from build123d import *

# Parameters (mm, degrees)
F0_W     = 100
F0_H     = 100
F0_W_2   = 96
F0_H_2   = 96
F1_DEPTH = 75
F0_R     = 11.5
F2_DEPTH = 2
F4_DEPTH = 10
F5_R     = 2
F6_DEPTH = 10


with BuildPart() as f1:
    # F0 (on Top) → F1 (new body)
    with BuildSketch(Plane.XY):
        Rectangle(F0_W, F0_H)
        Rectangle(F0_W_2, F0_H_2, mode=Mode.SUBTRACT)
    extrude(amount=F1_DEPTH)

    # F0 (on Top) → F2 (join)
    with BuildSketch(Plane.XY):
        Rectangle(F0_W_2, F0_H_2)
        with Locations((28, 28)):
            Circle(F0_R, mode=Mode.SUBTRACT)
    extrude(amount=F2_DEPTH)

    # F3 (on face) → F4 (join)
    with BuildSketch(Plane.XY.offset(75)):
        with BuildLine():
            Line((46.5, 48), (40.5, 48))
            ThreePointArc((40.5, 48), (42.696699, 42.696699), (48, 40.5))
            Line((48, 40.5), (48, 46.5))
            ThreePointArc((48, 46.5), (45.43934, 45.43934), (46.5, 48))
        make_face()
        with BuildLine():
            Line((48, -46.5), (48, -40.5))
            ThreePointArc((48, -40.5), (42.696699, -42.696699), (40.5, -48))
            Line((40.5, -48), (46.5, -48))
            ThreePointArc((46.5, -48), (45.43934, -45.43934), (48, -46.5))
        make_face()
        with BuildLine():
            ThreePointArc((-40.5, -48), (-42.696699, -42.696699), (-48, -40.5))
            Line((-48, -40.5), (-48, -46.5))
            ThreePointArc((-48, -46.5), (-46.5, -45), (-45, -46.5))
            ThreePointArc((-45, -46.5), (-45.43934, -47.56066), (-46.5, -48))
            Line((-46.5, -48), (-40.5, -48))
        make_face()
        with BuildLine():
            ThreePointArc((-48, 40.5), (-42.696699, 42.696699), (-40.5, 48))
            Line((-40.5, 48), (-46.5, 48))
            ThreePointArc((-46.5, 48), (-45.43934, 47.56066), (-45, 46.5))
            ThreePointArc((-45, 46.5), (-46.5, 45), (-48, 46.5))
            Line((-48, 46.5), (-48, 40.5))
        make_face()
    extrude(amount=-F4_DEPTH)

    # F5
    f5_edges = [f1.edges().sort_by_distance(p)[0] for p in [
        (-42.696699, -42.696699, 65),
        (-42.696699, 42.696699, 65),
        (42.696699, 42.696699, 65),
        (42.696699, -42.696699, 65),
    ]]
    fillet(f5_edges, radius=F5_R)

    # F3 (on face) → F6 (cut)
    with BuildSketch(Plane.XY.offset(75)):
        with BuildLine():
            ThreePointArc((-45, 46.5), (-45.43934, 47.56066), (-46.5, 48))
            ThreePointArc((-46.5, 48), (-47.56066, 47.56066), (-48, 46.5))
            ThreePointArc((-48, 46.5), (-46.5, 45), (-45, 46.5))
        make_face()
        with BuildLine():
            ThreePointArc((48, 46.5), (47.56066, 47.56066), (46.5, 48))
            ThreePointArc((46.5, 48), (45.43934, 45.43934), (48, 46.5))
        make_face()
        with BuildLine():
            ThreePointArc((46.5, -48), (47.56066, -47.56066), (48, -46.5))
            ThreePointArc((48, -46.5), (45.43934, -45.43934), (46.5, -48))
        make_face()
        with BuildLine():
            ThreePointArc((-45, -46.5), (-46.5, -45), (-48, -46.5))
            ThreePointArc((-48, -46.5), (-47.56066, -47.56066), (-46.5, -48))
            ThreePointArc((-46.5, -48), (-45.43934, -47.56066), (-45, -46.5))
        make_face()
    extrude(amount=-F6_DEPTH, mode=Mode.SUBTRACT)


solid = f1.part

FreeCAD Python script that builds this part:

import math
import FreeCAD as App
import Part
import Sketcher
Q = App.Units.Quantity


def edges_at(feature, points):
    """Names of the edges that pass closest to the given points."""
    edges = feature.Shape.Edges
    near = lambda p: min(range(len(edges)), key=lambda i: edges[i].distToShape(Part.Vertex(*p))[0])
    return sorted({f"Edge{near(p) + 1}" for p in points})

doc = App.newDocument("Part")
body = doc.addObject("PartDesign::Body", "Body")

sketch1 = doc.addObject("Sketcher::SketchObject", "Sketch")
body.addObject(sketch1)
sketch1.AttachmentSupport = (doc.XY_Plane, [""])
sketch1.MapMode = "FlatFace"
sketch1.addGeometry(Part.LineSegment(App.Vector(-50, 50, 0), App.Vector(-50, -50, 0)), False)
sketch1.addGeometry(Part.LineSegment(App.Vector(-50, -50, 0), App.Vector(50, -50, 0)), False)
sketch1.addGeometry(Part.LineSegment(App.Vector(50, -50, 0), App.Vector(50, 50, 0)), False)
sketch1.addGeometry(Part.LineSegment(App.Vector(50, 50, 0), App.Vector(-50, 50, 0)), False)
sketch1.addGeometry(Part.LineSegment(App.Vector(48, -48, 0), App.Vector(-48, -48, 0)), False)
sketch1.addGeometry(Part.LineSegment(App.Vector(-48, -48, 0), App.Vector(-48, 48, 0)), False)
sketch1.addGeometry(Part.LineSegment(App.Vector(-48, 48, 0), App.Vector(48, 48, 0)), False)
sketch1.addGeometry(Part.LineSegment(App.Vector(48, 48, 0), App.Vector(48, -48, 0)), False)
sketch1.addConstraint(Sketcher.Constraint("Coincident", 0, 2, 1, 1))
sketch1.addConstraint(Sketcher.Constraint("Coincident", 1, 2, 2, 1))
sketch1.addConstraint(Sketcher.Constraint("Coincident", 2, 2, 3, 1))
sketch1.addConstraint(Sketcher.Constraint("Coincident", 3, 2, 0, 1))
sketch1.addConstraint(Sketcher.Constraint("Coincident", 4, 2, 5, 1))
sketch1.addConstraint(Sketcher.Constraint("Coincident", 5, 2, 6, 1))
sketch1.addConstraint(Sketcher.Constraint("Coincident", 6, 2, 7, 1))
sketch1.addConstraint(Sketcher.Constraint("Coincident", 7, 2, 4, 1))
sketch1.addConstraint(Sketcher.Constraint("Vertical", 0))
sketch1.addConstraint(Sketcher.Constraint("Horizontal", 1))
sketch1.addConstraint(Sketcher.Constraint("Vertical", 2))
sketch1.addConstraint(Sketcher.Constraint("Horizontal", 3))
sketch1.addConstraint(Sketcher.Constraint("Horizontal", 4))
sketch1.addConstraint(Sketcher.Constraint("Vertical", 5))
sketch1.addConstraint(Sketcher.Constraint("Horizontal", 6))
sketch1.addConstraint(Sketcher.Constraint("Vertical", 7))
sketch1.addConstraint(Sketcher.Constraint("Symmetric", 0, 2, 2, 2, -1, 1))
sketch1.addConstraint(Sketcher.Constraint("Symmetric", 4, 2, 6, 2, -1, 1))
sketch1.addConstraint(Sketcher.Constraint("Equal", 3, 0))
sketch1.addConstraint(Sketcher.Constraint("Equal", 6, 5))
sketch1.addConstraint(Sketcher.Constraint("DistanceX", 1, 1, 1, 2, Q("100 mm")))
sketch1.addConstraint(Sketcher.Constraint("DistanceX", 4, 2, 4, 1, Q("96 mm")))
pad1 = doc.addObject("PartDesign::Pad", "Pad")
body.addObject(pad1)
pad1.Profile = sketch1
pad1.Length = 75

sketch2 = doc.addObject("Sketcher::SketchObject", "Sketch001")
body.addObject(sketch2)
sketch2.AttachmentSupport = (doc.XY_Plane, [""])
sketch2.MapMode = "FlatFace"
sketch2.addGeometry(Part.LineSegment(App.Vector(-48, 48, 0), App.Vector(-48, -48, 0)), False)
sketch2.addGeometry(Part.LineSegment(App.Vector(-48, -48, 0), App.Vector(48, -48, 0)), False)
sketch2.addGeometry(Part.LineSegment(App.Vector(48, -48, 0), App.Vector(48, 48, 0)), False)
sketch2.addGeometry(Part.LineSegment(App.Vector(48, 48, 0), App.Vector(-48, 48, 0)), False)
sketch2.addGeometry(Part.Circle(App.Vector(28, 28, 0), App.Vector(0, 0, 1), 11.5), False)
sketch2.addConstraint(Sketcher.Constraint("Coincident", 0, 2, 1, 1))
sketch2.addConstraint(Sketcher.Constraint("Coincident", 1, 2, 2, 1))
sketch2.addConstraint(Sketcher.Constraint("Coincident", 2, 2, 3, 1))
sketch2.addConstraint(Sketcher.Constraint("Coincident", 3, 2, 0, 1))
sketch2.addConstraint(Sketcher.Constraint("Vertical", 0))
sketch2.addConstraint(Sketcher.Constraint("Horizontal", 1))
sketch2.addConstraint(Sketcher.Constraint("Vertical", 2))
sketch2.addConstraint(Sketcher.Constraint("Horizontal", 3))
sketch2.addConstraint(Sketcher.Constraint("Symmetric", 0, 2, 2, 2, -1, 1))
sketch2.addConstraint(Sketcher.Constraint("Equal", 3, 0))
sketch2.addConstraint(Sketcher.Constraint("Diameter", 4, Q("23 mm")))
sketch2.addConstraint(Sketcher.Constraint("DistanceX", 1, 1, 1, 2, Q("96 mm")))
sketch2.addConstraint(Sketcher.Constraint("DistanceX", -1, 1, 4, 3, Q("28 mm")))
sketch2.addConstraint(Sketcher.Constraint("DistanceY", -1, 1, 4, 3, Q("28 mm")))
pad2 = doc.addObject("PartDesign::Pad", "Pad001")
body.addObject(pad2)
pad2.Profile = sketch2
pad2.Length = 2

sketch3 = doc.addObject("Sketcher::SketchObject", "Sketch002")
body.addObject(sketch3)
sketch3.AttachmentSupport = (doc.XY_Plane, [""])
sketch3.MapMode = "FlatFace"
sketch3.AttachmentOffset = App.Placement(App.Vector(0, 0, 75), App.Rotation())
sketch3.addGeometry(Part.LineSegment(App.Vector(46.5, 48, 0), App.Vector(40.5, 48, 0)), False)
sketch3.addGeometry(Part.ArcOfCircle(Part.Circle(App.Vector(48, 48, 0), App.Vector(0, 0, 1), 7.5), math.radians(179.999996), math.radians(270.000004)), False)
sketch3.addGeometry(Part.LineSegment(App.Vector(48, 40.5, 0), App.Vector(48, 46.5, 0)), False)
sketch3.addGeometry(Part.ArcOfCircle(Part.Circle(App.Vector(46.5, 46.5, 0), App.Vector(0, 0, 1), 1.5), math.radians(90.000004), math.radians(359.999996)), False)
sketch3.addGeometry(Part.LineSegment(App.Vector(48, -46.5, 0), App.Vector(48, -40.5, 0)), False)
sketch3.addGeometry(Part.ArcOfCircle(Part.Circle(App.Vector(48, -48, 0), App.Vector(0, 0, 1), 7.5), math.radians(89.999996), math.radians(180.000004)), False)
sketch3.addGeometry(Part.LineSegment(App.Vector(40.5, -48, 0), App.Vector(46.5, -48, 0)), False)
sketch3.addGeometry(Part.ArcOfCircle(Part.Circle(App.Vector(46.5, -46.5, 0), App.Vector(0, 0, 1), 1.5), math.radians(0.000004), math.radians(269.999996)), False)
sketch3.addGeometry(Part.ArcOfCircle(Part.Circle(App.Vector(-48, -48, 0), App.Vector(0, 0, 1), 7.5), math.radians(-0.000004), math.radians(90.000004)), False)
sketch3.addGeometry(Part.LineSegment(App.Vector(-48, -40.5, 0), App.Vector(-48, -46.5, 0)), False)
sketch3.addGeometry(Part.ArcOfCircle(Part.Circle(App.Vector(-46.5, -46.5, 0), App.Vector(0, 0, 1), 1.5), math.radians(0), math.radians(180)), False)
sketch3.addGeometry(Part.ArcOfCircle(Part.Circle(App.Vector(-46.500001, -46.499999, 0), App.Vector(0, 0, 1), 1.500001), math.radians(-89.999978), math.radians(-0.000022)), False)
sketch3.addGeometry(Part.LineSegment(App.Vector(-46.5, -48, 0), App.Vector(-40.5, -48, 0)), False)
sketch3.addGeometry(Part.ArcOfCircle(Part.Circle(App.Vector(-48, 48, 0), App.Vector(0, 0, 1), 7.5), math.radians(-90.000004), math.radians(0.000004)), False)
sketch3.addGeometry(Part.LineSegment(App.Vector(-40.5, 48, 0), App.Vector(-46.5, 48, 0)), False)
sketch3.addGeometry(Part.ArcOfCircle(Part.Circle(App.Vector(-46.500001, 46.499999, 0), App.Vector(0, 0, 1), 1.500001), math.radians(0.000022), math.radians(89.999978)), False)
sketch3.addGeometry(Part.ArcOfCircle(Part.Circle(App.Vector(-46.5, 46.5, 0), App.Vector(0, 0, 1), 1.5), math.radians(180), math.radians(360)), False)
sketch3.addGeometry(Part.LineSegment(App.Vector(-48, 46.5, 0), App.Vector(-48, 40.5, 0)), False)
sketch3.addConstraint(Sketcher.Constraint("Coincident", 0, 2, 1, 1))
sketch3.addConstraint(Sketcher.Constraint("Coincident", 1, 2, 2, 1))
sketch3.addConstraint(Sketcher.Constraint("Tangent", 2, 2, 3, 2))
sketch3.addConstraint(Sketcher.Constraint("Tangent", 3, 1, 0, 1))
sketch3.addConstraint(Sketcher.Constraint("Coincident", 4, 2, 5, 1))
sketch3.addConstraint(Sketcher.Constraint("Coincident", 5, 2, 6, 1))
sketch3.addConstraint(Sketcher.Constraint("Tangent", 6, 2, 7, 2))
sketch3.addConstraint(Sketcher.Constraint("Tangent", 7, 1, 4, 1))
sketch3.addConstraint(Sketcher.Constraint("Coincident", 8, 2, 9, 1))
sketch3.addConstraint(Sketcher.Constraint("Tangent", 9, 2, 10, 2))
sketch3.addConstraint(Sketcher.Constraint("Tangent", 10, 1, 11, 2))
sketch3.addConstraint(Sketcher.Constraint("Tangent", 11, 1, 12, 1))
sketch3.addConstraint(Sketcher.Constraint("Coincident", 12, 2, 8, 1))
sketch3.addConstraint(Sketcher.Constraint("Coincident", 13, 2, 14, 1))
sketch3.addConstraint(Sketcher.Constraint("Tangent", 14, 2, 15, 2))
sketch3.addConstraint(Sketcher.Constraint("Tangent", 15, 1, 16, 2))
sketch3.addConstraint(Sketcher.Constraint("Tangent", 16, 1, 17, 1))
sketch3.addConstraint(Sketcher.Constraint("Coincident", 17, 2, 13, 1))
sketch3.addConstraint(Sketcher.Constraint("Horizontal", 0))
sketch3.addConstraint(Sketcher.Constraint("Vertical", 2))
sketch3.addConstraint(Sketcher.Constraint("Vertical", 4))
sketch3.addConstraint(Sketcher.Constraint("Horizontal", 6))
sketch3.addConstraint(Sketcher.Constraint("Vertical", 9))
sketch3.addConstraint(Sketcher.Constraint("Horizontal", 12))
sketch3.addConstraint(Sketcher.Constraint("Horizontal", 14))
sketch3.addConstraint(Sketcher.Constraint("Vertical", 17))
sketch3.addConstraint(Sketcher.Constraint("Equal", 1, 5))
sketch3.addConstraint(Sketcher.Constraint("Equal", 3, 7))
sketch3.addConstraint(Sketcher.Constraint("Equal", 5, 8))
sketch3.addConstraint(Sketcher.Constraint("Equal", 7, 10))
sketch3.addConstraint(Sketcher.Constraint("Equal", 10, 11))
sketch3.addConstraint(Sketcher.Constraint("Equal", 8, 13))
sketch3.addConstraint(Sketcher.Constraint("Equal", 11, 15))
sketch3.addConstraint(Sketcher.Constraint("Equal", 15, 16))
sketch3.addConstraint(Sketcher.Constraint("Symmetric", 1, 3, 8, 3, -1, 1))
sketch3.addConstraint(Sketcher.Constraint("Symmetric", 3, 3, 10, 3, -1, 1))
sketch3.addConstraint(Sketcher.Constraint("Symmetric", 5, 3, 13, 3, -1, 1))
sketch3.addConstraint(Sketcher.Constraint("Symmetric", 7, 3, 15, 3, -1, 1))
sketch3.addConstraint(Sketcher.Constraint("Symmetric", 5, 3, 8, 3, -2))
sketch3.addConstraint(Sketcher.Constraint("Symmetric", 7, 3, 10, 3, -2))
sketch3.addConstraint(Sketcher.Constraint("Horizontal", 13, 3, 0, 2))
sketch3.addConstraint(Sketcher.Constraint("Horizontal", 9, 2, 10, 1))
sketch3.addConstraint(Sketcher.Constraint("Horizontal", 2, 2, 15, 1))
sketch3.addConstraint(Sketcher.Constraint("Vertical", 5, 3, 1, 2))
sketch3.addConstraint(Sketcher.Constraint("Radius", 1, Q("7.5 mm")))
sketch3.addConstraint(Sketcher.Constraint("Radius", 3, Q("1.5 mm")))
sketch3.addConstraint(Sketcher.Constraint("DistanceX", -1, 1, 1, 3, Q("48 mm")))
sketch3.addConstraint(Sketcher.Constraint("DistanceY", -1, 1, 1, 3, Q("48 mm")))
pad3 = doc.addObject("PartDesign::Pad", "Pad002")
body.addObject(pad3)
pad3.Profile = sketch3
pad3.Length = 10
pad3.Reversed = True
doc.recompute()

fillet = doc.addObject("PartDesign::Fillet", "Fillet")
body.addObject(fillet)
fillet.Base = (pad3, edges_at(pad3, [
    (-42.697, -42.697, 65),
    (-42.697, 42.697, 65),
    (42.697, 42.697, 65),
    (42.697, -42.697, 65),
]))
fillet.Radius = 2

sketch4 = doc.addObject("Sketcher::SketchObject", "Sketch003")
body.addObject(sketch4)
sketch4.AttachmentSupport = (doc.XY_Plane, [""])
sketch4.MapMode = "FlatFace"
sketch4.AttachmentOffset = App.Placement(App.Vector(0, 0, 75), App.Rotation())
sketch4.addGeometry(Part.ArcOfCircle(Part.Circle(App.Vector(-46.500001, 46.499999, 0), App.Vector(0, 0, 1), 1.500001), math.radians(0.000022), math.radians(89.999978)), False)
sketch4.addGeometry(Part.ArcOfCircle(Part.Circle(App.Vector(-46.499999, 46.499999, 0), App.Vector(0, 0, 1), 1.500001), math.radians(90.000022), math.radians(179.999978)), False)
sketch4.addGeometry(Part.ArcOfCircle(Part.Circle(App.Vector(-46.5, 46.5, 0), App.Vector(0, 0, 1), 1.5), math.radians(180), math.radians(360)), False)
sketch4.addGeometry(Part.ArcOfCircle(Part.Circle(App.Vector(46.499999, 46.499999, 0), App.Vector(0, 0, 1), 1.500001), math.radians(0.000022), math.radians(89.999978)), False)
sketch4.addGeometry(Part.ArcOfCircle(Part.Circle(App.Vector(46.5, 46.5, 0), App.Vector(0, 0, 1), 1.5), math.radians(90.000004), math.radians(359.999996)), False)
sketch4.addGeometry(Part.ArcOfCircle(Part.Circle(App.Vector(46.499999, -46.499999, 0), App.Vector(0, 0, 1), 1.500001), math.radians(-89.999978), math.radians(-0.000022)), False)
sketch4.addGeometry(Part.ArcOfCircle(Part.Circle(App.Vector(46.5, -46.5, 0), App.Vector(0, 0, 1), 1.5), math.radians(0.000004), math.radians(269.999996)), False)
sketch4.addGeometry(Part.ArcOfCircle(Part.Circle(App.Vector(-46.5, -46.5, 0), App.Vector(0, 0, 1), 1.5), math.radians(0), math.radians(180)), False)
sketch4.addGeometry(Part.ArcOfCircle(Part.Circle(App.Vector(-46.499999, -46.499999, 0), App.Vector(0, 0, 1), 1.500001), math.radians(-179.999978), math.radians(-90.000022)), False)
sketch4.addGeometry(Part.ArcOfCircle(Part.Circle(App.Vector(-46.500001, -46.499999, 0), App.Vector(0, 0, 1), 1.500001), math.radians(-89.999978), math.radians(-0.000022)), False)
sketch4.addConstraint(Sketcher.Constraint("Tangent", 0, 2, 1, 1))
sketch4.addConstraint(Sketcher.Constraint("Tangent", 1, 2, 2, 1))
sketch4.addConstraint(Sketcher.Constraint("Tangent", 2, 2, 0, 1))
sketch4.addConstraint(Sketcher.Constraint("Tangent", 3, 1, 4, 2))
sketch4.addConstraint(Sketcher.Constraint("Coincident", 4, 1, 3, 2))
sketch4.addConstraint(Sketcher.Constraint("Tangent", 5, 1, 6, 2))
sketch4.addConstraint(Sketcher.Constraint("Coincident", 6, 1, 5, 2))
sketch4.addConstraint(Sketcher.Constraint("Tangent", 7, 2, 8, 1))
sketch4.addConstraint(Sketcher.Constraint("Tangent", 8, 2, 9, 1))
sketch4.addConstraint(Sketcher.Constraint("Tangent", 9, 2, 7, 1))
sketch4.addConstraint(Sketcher.Constraint("Equal", 2, 3))
sketch4.addConstraint(Sketcher.Constraint("Equal", 4, 5))
sketch4.addConstraint(Sketcher.Constraint("Equal", 6, 7))
sketch4.addConstraint(Sketcher.Constraint("Symmetric", 0, 3, 5, 3, -1, 1))
sketch4.addConstraint(Sketcher.Constraint("Symmetric", 3, 3, 7, 3, -1, 1))
sketch4.addConstraint(Sketcher.Constraint("Symmetric", 0, 3, 3, 3, -2))
sketch4.addConstraint(Sketcher.Constraint("Horizontal", 4, 3, 1, 2))
sketch4.addConstraint(Sketcher.Constraint("Horizontal", 1, 2, 2, 2))
sketch4.addConstraint(Sketcher.Constraint("Horizontal", 2, 2, 3, 1))
sketch4.addConstraint(Sketcher.Constraint("Horizontal", 9, 3, 6, 1))
sketch4.addConstraint(Sketcher.Constraint("Horizontal", 6, 1, 7, 2))
sketch4.addConstraint(Sketcher.Constraint("Horizontal", 7, 2, 9, 2))
sketch4.addConstraint(Sketcher.Constraint("Vertical", 9, 3, 0, 2))
sketch4.addConstraint(Sketcher.Constraint("Vertical", 6, 3, 4, 1))
sketch4.addConstraint(Sketcher.Constraint("Vertical", 4, 1, 5, 1))
sketch4.addConstraint(Sketcher.Constraint("Vertical", 0, 2, 8, 2))
sketch4.addConstraint(Sketcher.Constraint("Radius", 0, Q("1.500001 mm")))
sketch4.addConstraint(Sketcher.Constraint("DistanceY", -1, 1, 0, 2, Q("48 mm")))
sketch4.addConstraint(Sketcher.Constraint("DistanceX", 1, 2, -1, 1, Q("48 mm")))
pocket1 = doc.addObject("PartDesign::Pocket", "Pocket")
body.addObject(pocket1)
pocket1.Profile = sketch4
pocket1.Length = 10

doc.recompute()
